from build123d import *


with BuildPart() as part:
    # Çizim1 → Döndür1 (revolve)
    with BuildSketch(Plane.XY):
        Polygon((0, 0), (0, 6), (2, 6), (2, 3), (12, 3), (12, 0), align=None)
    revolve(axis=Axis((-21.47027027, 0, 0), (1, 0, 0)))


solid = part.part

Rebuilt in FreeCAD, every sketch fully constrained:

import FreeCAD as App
import Part
import Sketcher

V = App.Vector
Q = App.Units.Quantity


def add_polygon(sketch, points):
    """Adds a closed chain of lines whose ends are joined by coincident constraints."""
    first, n = sketch.GeometryCount, len(points)
    for a, b in zip(points, points[1:] + points[:1]):
        sketch.addGeometry(Part.LineSegment(App.Vector(*a, 0), App.Vector(*b, 0)), False)
    for i in range(n):
        sketch.addConstraint(Sketcher.Constraint("Coincident", first + i, 2, first + (i + 1) % n, 1))

doc = App.newDocument("Part")
body = doc.addObject("PartDesign::Body", "Body")

# Sketch on XY plane
sketch1 = body.newObject("Sketcher::SketchObject", "Sketch")
sketch1.AttachmentSupport = (doc.getObject("XY_Plane"), [""])
sketch1.MapMode = "FlatFace"
add_polygon(sketch1, [(0, 6), (0, 0), (12, 0), (12, 3), (2, 3), (2, 6)])  # lines 0-5
sketch1.addConstraint(Sketcher.Constraint("Vertical", 0))
sketch1.addConstraint(Sketcher.Constraint("Horizontal", 1))
sketch1.addConstraint(Sketcher.Constraint("Vertical", 2))
sketch1.addConstraint(Sketcher.Constraint("Horizontal", 3))
sketch1.addConstraint(Sketcher.Constraint("Vertical", 4))
sketch1.addConstraint(Sketcher.Constraint("Horizontal", 5))
sketch1.addConstraint(Sketcher.Constraint("Coincident", 0, 2, -1, 1))
sketch1.addConstraint(Sketcher.Constraint("Equal", 2, 4))
sketch1.addConstraint(Sketcher.Constraint("DistanceX", 1, 1, 1, 2, Q("12 mm")))
sketch1.addConstraint(Sketcher.Constraint("DistanceX", 3, 2, 3, 1, Q("10 mm")))
sketch1.addConstraint(Sketcher.Constraint("DistanceY", 0, 2, 0, 1, Q("6 mm")))
revolution = body.newObject("PartDesign::Revolution", "Revolution")
revolution.Profile = sketch1
revolution.ReferenceAxis = (sketch1, ["H_Axis"])
revolution.Angle = 360

doc.recompute()
